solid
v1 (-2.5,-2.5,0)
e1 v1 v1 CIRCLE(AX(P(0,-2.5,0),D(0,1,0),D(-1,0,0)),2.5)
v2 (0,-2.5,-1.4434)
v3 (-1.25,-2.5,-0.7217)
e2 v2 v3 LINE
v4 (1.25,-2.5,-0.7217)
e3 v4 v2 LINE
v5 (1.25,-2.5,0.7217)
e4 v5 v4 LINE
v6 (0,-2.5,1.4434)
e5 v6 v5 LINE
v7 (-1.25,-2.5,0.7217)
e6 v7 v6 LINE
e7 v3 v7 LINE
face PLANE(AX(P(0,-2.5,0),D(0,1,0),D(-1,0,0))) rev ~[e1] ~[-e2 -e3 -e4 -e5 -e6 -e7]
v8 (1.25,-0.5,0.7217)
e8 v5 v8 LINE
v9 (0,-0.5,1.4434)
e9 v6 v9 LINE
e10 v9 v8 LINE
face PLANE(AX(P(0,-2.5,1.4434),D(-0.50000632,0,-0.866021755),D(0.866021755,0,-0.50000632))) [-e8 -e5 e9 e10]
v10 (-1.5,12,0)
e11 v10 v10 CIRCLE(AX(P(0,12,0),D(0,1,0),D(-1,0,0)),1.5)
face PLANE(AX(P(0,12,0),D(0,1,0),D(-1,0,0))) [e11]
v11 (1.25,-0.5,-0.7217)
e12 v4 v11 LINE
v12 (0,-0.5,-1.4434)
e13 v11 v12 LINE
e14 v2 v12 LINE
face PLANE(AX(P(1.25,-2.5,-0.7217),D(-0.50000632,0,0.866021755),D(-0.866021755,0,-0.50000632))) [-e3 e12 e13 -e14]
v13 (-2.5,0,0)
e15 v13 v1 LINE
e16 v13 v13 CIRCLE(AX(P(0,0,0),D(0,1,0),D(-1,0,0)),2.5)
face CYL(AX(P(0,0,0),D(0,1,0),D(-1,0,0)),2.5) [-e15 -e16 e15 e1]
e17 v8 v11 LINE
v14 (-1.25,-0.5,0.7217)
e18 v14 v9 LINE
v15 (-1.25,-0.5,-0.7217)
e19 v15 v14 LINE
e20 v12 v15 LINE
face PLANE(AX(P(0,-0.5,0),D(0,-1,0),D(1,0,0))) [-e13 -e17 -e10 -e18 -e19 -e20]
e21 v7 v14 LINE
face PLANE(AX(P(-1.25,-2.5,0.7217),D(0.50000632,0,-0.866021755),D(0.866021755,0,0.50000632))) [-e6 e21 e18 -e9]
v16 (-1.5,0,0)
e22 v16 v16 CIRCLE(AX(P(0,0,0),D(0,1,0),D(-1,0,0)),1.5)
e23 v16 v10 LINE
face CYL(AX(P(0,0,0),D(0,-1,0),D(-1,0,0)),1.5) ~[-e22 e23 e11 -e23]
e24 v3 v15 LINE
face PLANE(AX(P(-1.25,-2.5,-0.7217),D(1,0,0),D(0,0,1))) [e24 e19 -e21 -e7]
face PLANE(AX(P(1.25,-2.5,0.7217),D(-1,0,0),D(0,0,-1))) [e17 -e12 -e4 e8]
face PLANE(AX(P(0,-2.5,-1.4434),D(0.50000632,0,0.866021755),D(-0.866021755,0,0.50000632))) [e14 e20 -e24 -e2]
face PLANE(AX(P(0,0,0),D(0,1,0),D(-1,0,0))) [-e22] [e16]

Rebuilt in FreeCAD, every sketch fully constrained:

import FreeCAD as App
import Part
import Sketcher
Q = App.Units.Quantity


def add_polygon(sketch, points):
    """Adds a closed chain of lines whose ends are joined by coincident constraints."""
    first, n = sketch.GeometryCount, len(points)
    for a, b in zip(points, points[1:] + points[:1]):
        sketch.addGeometry(Part.LineSegment(App.Vector(*a, 0), App.Vector(*b, 0)), False)
    for i in range(n):
        sketch.addConstraint(Sketcher.Constraint("Coincident", first + i, 2, first + (i + 1) % n, 1))

doc = App.newDocument("Part")
body = doc.addObject("PartDesign::Body", "Body")

sketch1 = body.newObject("Sketcher::SketchObject", "Sketch")
sketch1.AttachmentSupport = (doc.getObject("XZ_Plane"), [""])
sketch1.MapMode = "FlatFace"
sketch1.addGeometry(Part.Circle(App.Vector(0, 0, 0), App.Vector(0, 0, 1), 1.5), False)
sketch1.addConstraint([
    Sketcher.Constraint("Coincident", 0, 3, -1, 1),
    Sketcher.Constraint("Diameter", 0, Q("3 mm")),
])
pad1 = body.newObject("PartDesign::Pad", "Pad")
pad1.Profile = sketch1
pad1.Length = 12
pad1.Reversed = True

sketch2 = body.newObject("Sketcher::SketchObject", "Sketch001")
sketch2.AttachmentSupport = (doc.getObject("XZ_Plane"), [""])
sketch2.MapMode = "FlatFace"
sketch2.addGeometry(Part.Circle(App.Vector(0, 0, 0), App.Vector(0, 0, 1), 2.5), False)
sketch2.addConstraint([
    Sketcher.Constraint("Coincident", 0, 3, -1, 1),
    Sketcher.Constraint("Diameter", 0, Q("5 mm")),
])
pad2 = body.newObject("PartDesign::Pad", "Pad001")
pad2.Profile = sketch2
pad2.Length = 2.5

sketch3 = body.newObject("Sketcher::SketchObject", "Sketch002")
sketch3.AttachmentSupport = (doc.getObject("XZ_Plane"), [""])
sketch3.MapMode = "FlatFace"
sketch3.AttachmentOffset = App.Placement(App.Vector(0, 0, 2.5), App.Rotation())
add_polygon(sketch3, [(0, -1.4), (1.2, -0.7), (1.2, 0.7), (0, 1.4), (-1.2, 0.7), (-1.2, -0.7)])
sketch3.addConstraint([
    Sketcher.Constraint("Vertical", 1),
    Sketcher.Constraint("Vertical", 4),
    Sketcher.Constraint("Symmetric", 0, 2, 3, 2, -1, 1),
    Sketcher.Constraint("Symmetric", 2, 2, 5, 2, -1, 1),
    Sketcher.Constraint("PointOnObject", 2, 2, -2),
    Sketcher.Constraint("Parallel", 2, 5),
    Sketcher.Constraint("Horizontal", 1, 2, 3, 2),
    Sketcher.Constraint("Angle", 0, Q("30.0004 deg")),
    Sketcher.Constraint("DistanceX", 3, 2, 1, 2, Q("2.5 mm")),
    Sketcher.Constraint("DistanceY", 1, 1, 1, 2, Q("1.4434 mm")),
])
pocket1 = body.newObject("PartDesign::Pocket", "Pocket")
pocket1.Profile = sketch3
pocket1.Length = 2

doc.recompute()
